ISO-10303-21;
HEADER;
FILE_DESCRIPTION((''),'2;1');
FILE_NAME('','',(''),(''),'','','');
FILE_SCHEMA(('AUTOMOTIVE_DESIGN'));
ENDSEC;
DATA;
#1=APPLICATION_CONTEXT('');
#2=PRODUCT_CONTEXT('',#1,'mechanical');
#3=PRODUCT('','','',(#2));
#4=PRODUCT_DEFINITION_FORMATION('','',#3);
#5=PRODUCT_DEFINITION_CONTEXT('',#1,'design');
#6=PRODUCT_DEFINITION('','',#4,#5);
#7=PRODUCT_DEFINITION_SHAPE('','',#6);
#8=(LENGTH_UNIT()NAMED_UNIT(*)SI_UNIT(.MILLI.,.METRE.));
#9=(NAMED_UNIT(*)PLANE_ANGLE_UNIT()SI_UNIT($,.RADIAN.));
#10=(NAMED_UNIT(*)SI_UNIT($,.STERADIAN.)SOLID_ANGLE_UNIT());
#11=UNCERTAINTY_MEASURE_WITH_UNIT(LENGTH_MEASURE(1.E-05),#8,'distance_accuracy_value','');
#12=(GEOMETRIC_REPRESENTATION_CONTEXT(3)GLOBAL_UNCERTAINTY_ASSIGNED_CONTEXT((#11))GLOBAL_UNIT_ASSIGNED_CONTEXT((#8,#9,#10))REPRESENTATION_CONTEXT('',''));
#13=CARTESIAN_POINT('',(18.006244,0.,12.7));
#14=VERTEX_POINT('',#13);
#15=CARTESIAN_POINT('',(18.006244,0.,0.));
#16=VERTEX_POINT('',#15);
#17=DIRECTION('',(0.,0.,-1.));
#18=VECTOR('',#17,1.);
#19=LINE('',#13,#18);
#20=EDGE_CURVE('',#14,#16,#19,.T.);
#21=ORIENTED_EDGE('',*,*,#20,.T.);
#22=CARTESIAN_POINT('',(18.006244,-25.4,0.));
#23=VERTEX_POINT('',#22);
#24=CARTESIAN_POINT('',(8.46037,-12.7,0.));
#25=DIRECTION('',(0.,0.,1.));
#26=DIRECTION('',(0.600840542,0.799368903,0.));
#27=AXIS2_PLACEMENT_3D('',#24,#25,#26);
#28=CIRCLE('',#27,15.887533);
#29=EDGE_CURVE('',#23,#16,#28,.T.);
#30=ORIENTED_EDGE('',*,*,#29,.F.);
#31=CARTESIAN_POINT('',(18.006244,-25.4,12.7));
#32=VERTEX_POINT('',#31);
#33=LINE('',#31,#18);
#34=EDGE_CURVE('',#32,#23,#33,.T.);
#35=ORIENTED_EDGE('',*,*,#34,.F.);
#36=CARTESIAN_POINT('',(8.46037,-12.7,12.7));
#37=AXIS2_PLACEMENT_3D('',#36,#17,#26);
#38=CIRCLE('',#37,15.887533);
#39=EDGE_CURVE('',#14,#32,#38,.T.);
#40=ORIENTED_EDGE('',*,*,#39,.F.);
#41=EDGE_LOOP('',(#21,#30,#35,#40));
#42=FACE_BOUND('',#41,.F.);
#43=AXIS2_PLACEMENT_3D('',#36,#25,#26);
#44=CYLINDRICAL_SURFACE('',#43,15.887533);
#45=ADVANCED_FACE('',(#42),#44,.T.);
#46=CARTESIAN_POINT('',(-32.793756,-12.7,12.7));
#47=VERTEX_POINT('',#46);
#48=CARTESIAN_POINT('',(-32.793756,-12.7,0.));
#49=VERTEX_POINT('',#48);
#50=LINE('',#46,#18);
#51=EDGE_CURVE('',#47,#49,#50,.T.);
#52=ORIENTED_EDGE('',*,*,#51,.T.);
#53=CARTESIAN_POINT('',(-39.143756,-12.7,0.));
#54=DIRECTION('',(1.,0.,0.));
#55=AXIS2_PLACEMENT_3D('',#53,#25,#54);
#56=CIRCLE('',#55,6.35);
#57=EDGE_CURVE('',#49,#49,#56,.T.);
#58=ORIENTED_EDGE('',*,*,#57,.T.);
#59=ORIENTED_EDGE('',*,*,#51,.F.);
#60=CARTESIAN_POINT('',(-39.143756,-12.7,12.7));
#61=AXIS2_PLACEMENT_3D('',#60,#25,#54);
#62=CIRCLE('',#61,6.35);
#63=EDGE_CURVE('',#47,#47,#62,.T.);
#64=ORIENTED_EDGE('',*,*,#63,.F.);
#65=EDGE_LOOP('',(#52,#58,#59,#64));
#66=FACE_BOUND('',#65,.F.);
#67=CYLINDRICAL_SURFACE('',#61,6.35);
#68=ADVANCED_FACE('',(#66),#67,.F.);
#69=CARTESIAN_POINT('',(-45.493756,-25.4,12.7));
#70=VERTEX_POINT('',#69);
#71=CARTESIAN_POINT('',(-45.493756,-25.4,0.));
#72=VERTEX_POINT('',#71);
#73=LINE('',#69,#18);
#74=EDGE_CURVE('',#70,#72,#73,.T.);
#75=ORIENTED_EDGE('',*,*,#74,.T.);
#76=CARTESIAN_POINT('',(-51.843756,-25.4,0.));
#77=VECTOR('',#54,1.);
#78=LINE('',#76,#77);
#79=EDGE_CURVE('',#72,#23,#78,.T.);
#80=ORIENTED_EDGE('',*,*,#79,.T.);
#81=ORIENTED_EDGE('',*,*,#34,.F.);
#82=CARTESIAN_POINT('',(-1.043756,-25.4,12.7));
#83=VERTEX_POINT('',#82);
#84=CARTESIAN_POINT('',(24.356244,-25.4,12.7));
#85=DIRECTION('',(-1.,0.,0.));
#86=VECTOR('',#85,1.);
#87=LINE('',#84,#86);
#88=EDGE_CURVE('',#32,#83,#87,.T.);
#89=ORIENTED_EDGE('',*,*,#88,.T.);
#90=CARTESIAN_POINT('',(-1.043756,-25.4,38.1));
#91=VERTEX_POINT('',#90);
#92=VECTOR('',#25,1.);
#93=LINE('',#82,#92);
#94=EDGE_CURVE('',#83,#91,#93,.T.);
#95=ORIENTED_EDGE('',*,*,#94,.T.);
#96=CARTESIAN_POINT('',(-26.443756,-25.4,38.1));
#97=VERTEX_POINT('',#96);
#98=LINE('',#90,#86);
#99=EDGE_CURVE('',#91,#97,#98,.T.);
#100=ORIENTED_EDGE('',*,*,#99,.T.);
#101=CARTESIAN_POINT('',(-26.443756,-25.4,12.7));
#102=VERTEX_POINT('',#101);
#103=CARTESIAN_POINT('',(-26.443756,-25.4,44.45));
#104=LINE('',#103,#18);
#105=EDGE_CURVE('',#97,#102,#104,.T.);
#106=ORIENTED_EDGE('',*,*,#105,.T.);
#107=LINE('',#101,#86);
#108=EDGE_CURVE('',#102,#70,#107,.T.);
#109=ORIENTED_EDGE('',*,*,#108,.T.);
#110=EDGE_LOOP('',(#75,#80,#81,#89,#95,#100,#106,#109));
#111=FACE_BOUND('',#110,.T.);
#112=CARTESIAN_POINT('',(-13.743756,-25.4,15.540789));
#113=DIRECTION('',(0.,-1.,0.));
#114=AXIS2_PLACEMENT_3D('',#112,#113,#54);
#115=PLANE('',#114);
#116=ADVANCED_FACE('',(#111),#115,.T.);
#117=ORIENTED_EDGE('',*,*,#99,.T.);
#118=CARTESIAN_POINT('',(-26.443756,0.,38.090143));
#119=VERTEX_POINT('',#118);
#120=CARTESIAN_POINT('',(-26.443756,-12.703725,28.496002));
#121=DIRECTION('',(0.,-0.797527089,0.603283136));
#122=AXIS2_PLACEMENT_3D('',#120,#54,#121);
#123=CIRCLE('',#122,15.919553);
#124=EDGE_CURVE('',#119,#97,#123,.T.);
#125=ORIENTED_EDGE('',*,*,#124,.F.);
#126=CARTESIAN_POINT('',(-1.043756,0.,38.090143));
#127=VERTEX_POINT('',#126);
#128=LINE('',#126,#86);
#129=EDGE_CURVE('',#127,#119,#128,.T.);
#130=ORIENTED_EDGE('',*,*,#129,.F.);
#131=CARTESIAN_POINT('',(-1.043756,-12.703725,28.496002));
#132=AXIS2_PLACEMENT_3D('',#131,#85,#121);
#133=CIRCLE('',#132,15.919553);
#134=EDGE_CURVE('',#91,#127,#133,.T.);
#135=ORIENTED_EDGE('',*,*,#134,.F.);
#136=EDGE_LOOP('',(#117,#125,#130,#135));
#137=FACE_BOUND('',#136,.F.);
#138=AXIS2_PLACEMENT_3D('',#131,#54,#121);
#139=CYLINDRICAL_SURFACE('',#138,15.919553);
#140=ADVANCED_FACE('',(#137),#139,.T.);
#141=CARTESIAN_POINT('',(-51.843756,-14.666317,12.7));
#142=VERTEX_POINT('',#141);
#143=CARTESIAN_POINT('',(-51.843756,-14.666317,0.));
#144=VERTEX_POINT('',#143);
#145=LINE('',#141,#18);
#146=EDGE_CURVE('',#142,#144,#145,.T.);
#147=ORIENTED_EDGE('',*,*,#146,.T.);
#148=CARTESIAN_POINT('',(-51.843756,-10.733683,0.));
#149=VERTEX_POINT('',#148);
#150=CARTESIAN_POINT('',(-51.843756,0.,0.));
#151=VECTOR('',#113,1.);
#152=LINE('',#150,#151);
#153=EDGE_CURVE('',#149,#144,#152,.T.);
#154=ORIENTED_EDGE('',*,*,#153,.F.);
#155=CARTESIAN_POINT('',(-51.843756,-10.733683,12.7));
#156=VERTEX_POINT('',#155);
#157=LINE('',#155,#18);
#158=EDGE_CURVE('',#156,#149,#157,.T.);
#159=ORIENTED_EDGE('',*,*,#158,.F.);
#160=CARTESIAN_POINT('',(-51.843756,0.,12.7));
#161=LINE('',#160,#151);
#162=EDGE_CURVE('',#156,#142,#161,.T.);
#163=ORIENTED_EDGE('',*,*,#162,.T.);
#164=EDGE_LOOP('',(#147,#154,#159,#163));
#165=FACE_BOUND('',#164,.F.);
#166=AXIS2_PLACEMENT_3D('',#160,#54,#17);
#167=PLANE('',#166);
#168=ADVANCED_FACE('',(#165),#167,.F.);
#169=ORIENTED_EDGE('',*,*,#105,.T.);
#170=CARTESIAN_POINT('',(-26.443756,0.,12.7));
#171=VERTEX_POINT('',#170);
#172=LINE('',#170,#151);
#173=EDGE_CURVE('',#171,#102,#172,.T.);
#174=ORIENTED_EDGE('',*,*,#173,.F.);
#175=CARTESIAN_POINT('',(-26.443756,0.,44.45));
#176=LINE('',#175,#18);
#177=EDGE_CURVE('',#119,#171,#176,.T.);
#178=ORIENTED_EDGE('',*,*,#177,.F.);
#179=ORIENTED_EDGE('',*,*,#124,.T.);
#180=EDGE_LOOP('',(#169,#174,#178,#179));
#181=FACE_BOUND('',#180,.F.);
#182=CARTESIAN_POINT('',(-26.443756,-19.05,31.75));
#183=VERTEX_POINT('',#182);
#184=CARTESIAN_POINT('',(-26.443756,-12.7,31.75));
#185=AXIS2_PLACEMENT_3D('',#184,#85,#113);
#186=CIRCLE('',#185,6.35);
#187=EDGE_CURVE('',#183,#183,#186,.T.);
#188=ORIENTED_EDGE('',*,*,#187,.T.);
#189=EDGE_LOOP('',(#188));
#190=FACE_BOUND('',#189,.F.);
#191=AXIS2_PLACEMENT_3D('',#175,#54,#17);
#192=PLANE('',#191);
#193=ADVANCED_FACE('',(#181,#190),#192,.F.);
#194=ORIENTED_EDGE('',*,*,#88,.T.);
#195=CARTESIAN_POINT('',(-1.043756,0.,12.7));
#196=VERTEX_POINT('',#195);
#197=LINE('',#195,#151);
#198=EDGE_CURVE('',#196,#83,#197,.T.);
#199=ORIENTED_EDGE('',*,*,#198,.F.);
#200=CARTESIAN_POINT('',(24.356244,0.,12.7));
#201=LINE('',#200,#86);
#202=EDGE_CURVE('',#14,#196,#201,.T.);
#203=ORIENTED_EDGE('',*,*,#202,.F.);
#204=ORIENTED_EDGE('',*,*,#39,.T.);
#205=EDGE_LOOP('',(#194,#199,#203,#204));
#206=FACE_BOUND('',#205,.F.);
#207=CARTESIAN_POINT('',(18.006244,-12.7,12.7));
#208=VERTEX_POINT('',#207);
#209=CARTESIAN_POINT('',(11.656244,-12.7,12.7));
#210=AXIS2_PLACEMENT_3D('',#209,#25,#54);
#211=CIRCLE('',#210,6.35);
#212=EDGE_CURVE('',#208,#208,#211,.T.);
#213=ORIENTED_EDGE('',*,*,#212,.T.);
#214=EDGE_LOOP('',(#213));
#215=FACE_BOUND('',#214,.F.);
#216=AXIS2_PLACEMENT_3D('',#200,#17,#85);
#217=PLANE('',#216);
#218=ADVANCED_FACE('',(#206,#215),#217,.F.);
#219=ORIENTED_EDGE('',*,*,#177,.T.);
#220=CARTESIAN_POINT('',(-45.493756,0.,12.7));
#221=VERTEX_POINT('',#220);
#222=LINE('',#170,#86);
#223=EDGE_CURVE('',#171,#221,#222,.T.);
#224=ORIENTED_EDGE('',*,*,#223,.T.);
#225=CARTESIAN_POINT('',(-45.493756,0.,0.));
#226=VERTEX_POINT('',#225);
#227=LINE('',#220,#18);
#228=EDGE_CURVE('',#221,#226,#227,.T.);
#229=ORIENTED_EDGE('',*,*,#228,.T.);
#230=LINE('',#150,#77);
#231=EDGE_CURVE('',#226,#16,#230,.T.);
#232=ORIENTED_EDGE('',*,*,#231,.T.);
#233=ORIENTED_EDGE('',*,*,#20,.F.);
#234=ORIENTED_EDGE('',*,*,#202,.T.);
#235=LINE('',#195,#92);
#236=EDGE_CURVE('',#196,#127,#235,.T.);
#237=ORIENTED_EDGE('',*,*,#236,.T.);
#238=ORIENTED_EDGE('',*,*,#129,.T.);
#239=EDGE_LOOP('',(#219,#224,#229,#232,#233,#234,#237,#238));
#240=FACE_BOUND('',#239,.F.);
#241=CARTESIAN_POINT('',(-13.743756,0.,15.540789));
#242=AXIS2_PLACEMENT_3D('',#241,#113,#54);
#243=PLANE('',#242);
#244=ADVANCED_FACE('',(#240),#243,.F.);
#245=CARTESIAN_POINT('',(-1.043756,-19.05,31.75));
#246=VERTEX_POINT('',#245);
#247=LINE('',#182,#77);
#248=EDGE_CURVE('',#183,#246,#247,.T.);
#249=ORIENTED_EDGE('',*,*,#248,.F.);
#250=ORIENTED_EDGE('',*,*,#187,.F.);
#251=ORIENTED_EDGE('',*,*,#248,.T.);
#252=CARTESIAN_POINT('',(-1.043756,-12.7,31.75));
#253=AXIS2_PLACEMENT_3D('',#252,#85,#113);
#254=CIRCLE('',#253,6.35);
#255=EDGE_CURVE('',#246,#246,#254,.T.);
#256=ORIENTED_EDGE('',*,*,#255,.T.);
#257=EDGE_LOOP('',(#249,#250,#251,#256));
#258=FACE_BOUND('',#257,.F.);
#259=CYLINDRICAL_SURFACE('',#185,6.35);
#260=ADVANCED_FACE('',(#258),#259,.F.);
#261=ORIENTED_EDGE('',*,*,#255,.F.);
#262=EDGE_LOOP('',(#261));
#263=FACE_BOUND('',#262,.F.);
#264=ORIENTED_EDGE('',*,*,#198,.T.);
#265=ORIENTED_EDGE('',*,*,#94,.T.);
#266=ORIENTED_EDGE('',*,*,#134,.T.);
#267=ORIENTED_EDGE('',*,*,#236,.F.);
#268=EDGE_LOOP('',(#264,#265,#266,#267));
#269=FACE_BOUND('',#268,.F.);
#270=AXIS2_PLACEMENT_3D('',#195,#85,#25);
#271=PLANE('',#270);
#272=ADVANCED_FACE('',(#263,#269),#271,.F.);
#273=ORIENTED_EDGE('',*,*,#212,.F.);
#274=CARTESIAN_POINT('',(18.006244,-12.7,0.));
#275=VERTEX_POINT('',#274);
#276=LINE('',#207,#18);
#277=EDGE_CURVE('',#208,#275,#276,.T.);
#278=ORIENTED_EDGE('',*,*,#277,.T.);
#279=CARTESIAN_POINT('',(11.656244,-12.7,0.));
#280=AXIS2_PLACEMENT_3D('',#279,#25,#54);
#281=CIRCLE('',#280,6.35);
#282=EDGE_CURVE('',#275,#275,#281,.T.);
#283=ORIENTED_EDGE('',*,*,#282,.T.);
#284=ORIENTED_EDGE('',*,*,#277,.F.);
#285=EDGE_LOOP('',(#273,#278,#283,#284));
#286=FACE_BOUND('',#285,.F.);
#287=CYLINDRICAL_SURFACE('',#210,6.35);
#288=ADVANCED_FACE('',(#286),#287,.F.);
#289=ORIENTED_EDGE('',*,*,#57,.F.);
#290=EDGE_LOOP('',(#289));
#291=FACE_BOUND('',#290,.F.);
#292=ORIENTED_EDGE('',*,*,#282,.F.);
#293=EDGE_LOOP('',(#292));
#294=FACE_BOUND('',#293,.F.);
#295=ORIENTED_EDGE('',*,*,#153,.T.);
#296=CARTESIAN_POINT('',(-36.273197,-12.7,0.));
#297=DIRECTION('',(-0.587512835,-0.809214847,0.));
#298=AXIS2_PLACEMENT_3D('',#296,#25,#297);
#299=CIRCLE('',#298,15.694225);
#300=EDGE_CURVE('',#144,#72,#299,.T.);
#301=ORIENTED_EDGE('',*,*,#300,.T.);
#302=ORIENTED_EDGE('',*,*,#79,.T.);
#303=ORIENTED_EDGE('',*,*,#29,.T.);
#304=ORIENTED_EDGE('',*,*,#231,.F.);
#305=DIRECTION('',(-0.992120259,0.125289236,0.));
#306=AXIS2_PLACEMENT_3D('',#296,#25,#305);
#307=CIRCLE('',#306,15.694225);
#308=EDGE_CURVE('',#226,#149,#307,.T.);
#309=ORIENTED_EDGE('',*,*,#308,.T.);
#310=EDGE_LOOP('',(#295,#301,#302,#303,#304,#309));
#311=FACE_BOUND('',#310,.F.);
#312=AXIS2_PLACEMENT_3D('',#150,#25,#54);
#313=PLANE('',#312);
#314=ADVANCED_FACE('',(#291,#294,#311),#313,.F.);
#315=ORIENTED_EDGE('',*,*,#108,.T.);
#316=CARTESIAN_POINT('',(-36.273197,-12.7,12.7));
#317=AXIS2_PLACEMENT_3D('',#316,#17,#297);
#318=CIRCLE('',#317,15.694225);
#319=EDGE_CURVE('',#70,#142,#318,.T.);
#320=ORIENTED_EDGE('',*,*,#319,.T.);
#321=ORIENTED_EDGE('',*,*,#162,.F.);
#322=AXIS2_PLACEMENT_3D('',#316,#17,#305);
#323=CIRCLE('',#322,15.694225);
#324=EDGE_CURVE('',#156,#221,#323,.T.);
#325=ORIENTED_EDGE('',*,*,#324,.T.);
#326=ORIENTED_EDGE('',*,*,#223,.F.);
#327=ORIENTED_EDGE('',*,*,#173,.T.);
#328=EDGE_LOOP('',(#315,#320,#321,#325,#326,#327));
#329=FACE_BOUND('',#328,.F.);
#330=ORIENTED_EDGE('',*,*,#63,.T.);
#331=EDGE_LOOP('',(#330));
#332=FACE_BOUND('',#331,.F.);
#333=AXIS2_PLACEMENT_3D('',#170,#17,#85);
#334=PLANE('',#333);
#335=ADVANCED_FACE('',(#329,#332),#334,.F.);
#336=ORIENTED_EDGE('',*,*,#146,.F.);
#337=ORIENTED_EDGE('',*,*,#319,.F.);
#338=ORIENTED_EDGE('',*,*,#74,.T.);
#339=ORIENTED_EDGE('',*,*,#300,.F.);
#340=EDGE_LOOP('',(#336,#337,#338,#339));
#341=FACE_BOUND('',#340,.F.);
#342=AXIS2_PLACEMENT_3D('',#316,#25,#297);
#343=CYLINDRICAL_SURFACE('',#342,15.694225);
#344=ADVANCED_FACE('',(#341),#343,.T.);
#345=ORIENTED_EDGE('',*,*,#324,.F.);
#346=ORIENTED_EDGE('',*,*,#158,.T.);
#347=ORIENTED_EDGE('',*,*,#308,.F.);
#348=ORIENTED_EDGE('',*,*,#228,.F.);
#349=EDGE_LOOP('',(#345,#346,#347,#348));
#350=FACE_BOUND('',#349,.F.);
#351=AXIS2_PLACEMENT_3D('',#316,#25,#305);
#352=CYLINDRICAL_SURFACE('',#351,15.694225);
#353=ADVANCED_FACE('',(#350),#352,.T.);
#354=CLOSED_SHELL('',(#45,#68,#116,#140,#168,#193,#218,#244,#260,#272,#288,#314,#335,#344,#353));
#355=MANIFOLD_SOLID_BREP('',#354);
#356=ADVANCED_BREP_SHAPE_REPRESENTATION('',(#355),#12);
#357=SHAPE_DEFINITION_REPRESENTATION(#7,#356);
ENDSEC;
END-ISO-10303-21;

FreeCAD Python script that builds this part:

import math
import FreeCAD as App
import Part
import Sketcher
Q = App.Units.Quantity

doc = App.newDocument("Part")
body = doc.addObject("PartDesign::Body", "Body")

# Sketch on XZ plane
sketch1 = body.newObject("Sketcher::SketchObject", "Sketch")
sketch1.AttachmentSupport = (doc.getObject("XZ_Plane"), [""])
sketch1.MapMode = "FlatFace"
sketch1.addGeometry([
    Part.LineSegment(App.Vector(-52, 13, 0), App.Vector(-52, 0, 0)),  # 0
    Part.LineSegment(App.Vector(-52, 0, 0), App.Vector(24, 0, 0)),  # 1
    Part.LineSegment(App.Vector(24, 0, 0), App.Vector(24, 13, 0)),  # 2
    Part.LineSegment(App.Vector(24, 13, 0), App.Vector(-1, 13, 0)),  # 3
    Part.LineSegment(App.Vector(-1, 13, 0), App.Vector(-1, 44, 0)),  # 4
    Part.LineSegment(App.Vector(-1, 44, 0), App.Vector(-26, 44, 0)),  # 5
    Part.LineSegment(App.Vector(-26, 44, 0), App.Vector(-26, 13, 0)),  # 6
    Part.LineSegment(App.Vector(-26, 13, 0), App.Vector(-52, 13, 0)),  # 7
], False)
sketch1.addConstraint([
    Sketcher.Constraint("Coincident", 0, 2, 1, 1),
    Sketcher.Constraint("Coincident", 1, 2, 2, 1),
    Sketcher.Constraint("Coincident", 2, 2, 3, 1),
    Sketcher.Constraint("Coincident", 3, 2, 4, 1),
    Sketcher.Constraint("Coincident", 4, 2, 5, 1),
    Sketcher.Constraint("Coincident", 5, 2, 6, 1),
    Sketcher.Constraint("Coincident", 6, 2, 7, 1),
    Sketcher.Constraint("Coincident", 7, 2, 0, 1),
    Sketcher.Constraint("Vertical", 0),
    Sketcher.Constraint("Horizontal", 1),
    Sketcher.Constraint("Vertical", 2),
    Sketcher.Constraint("Horizontal", 3),
    Sketcher.Constraint("Vertical", 4),
    Sketcher.Constraint("Horizontal", 5),
    Sketcher.Constraint("Vertical", 6),
    Sketcher.Constraint("Horizontal", 7),
    Sketcher.Constraint("PointOnObject", 0, 2, -1),
    Sketcher.Constraint("Horizontal", 3, 2, 6, 2),
    Sketcher.Constraint("Equal", 3, 5),
    Sketcher.Constraint("Equal", 5, 7),
    Sketcher.Constraint("DistanceX", 1, 1, 1, 2, Q("3 in")),
    Sketcher.Constraint("DistanceY", 0, 2, 0, 1, Q("0.5 in")),
    Sketcher.Constraint("DistanceY", 4, 1, 4, 2, Q("1.25 in")),
    Sketcher.Constraint("DistanceX", 0, 2, -1, 1, Q("51.843756 mm")),
])
pad1 = body.newObject("PartDesign::Pad", "Pad")
pad1.Profile = sketch1
pad1.Length = Q("1 in")

# Sketch on YZ plane
sketch2 = body.newObject("Sketcher::SketchObject", "Sketch001")
sketch2.AttachmentSupport = (doc.getObject("YZ_Plane"), [""])
sketch2.MapMode = "FlatFace"
sketch2.AttachmentOffset = App.Placement(App.Vector(0, 0, -26.443756), App.Rotation())
sketch2.addGeometry(Part.Circle(App.Vector(-13, 32, 0), App.Vector(0, 0, 1), 6), False)
sketch2.addConstraint([
    Sketcher.Constraint("Diameter", 0, Q("0.5 in")),
    Sketcher.Constraint("DistanceX", 0, 3, -1, 1, Q("0.5 in")),
    Sketcher.Constraint("DistanceY", -1, 1, 0, 3, Q("1.25 in")),
])
pocket1 = body.newObject("PartDesign::Pocket", "Pocket")
pocket1.Profile = sketch2
pocket1.Type = "ThroughAll"
pocket1.Reversed = True

# Sketch on YZ plane
sketch3 = body.newObject("Sketcher::SketchObject", "Sketch002")
sketch3.AttachmentSupport = (doc.getObject("YZ_Plane"), [""])
sketch3.MapMode = "FlatFace"
sketch3.AttachmentOffset = App.Placement(App.Vector(0, 0, -1.043756), App.Rotation())
sketch3.addGeometry([
    Part.ArcOfCircle(Part.Circle(App.Vector(-13, 28, 0), App.Vector(0, 0, 1), 16), math.radians(37), math.radians(143)),
    Part.LineSegment(App.Vector(0, 38, 0), App.Vector(0, 44, 0)),
    Part.LineSegment(App.Vector(0, 44, 0), App.Vector(-25, 44, 0)),
    Part.LineSegment(App.Vector(-25, 44, 0), App.Vector(-25, 38, 0)),
], False)
sketch3.addConstraint([
    Sketcher.Constraint("Coincident", 0, 1, 1, 1),
    Sketcher.Constraint("Coincident", 1, 2, 2, 1),
    Sketcher.Constraint("Coincident", 2, 2, 3, 1),
    Sketcher.Constraint("Coincident", 3, 2, 0, 2),
    Sketcher.Constraint("Vertical", 1),
    Sketcher.Constraint("Horizontal", 2),
    Sketcher.Constraint("Vertical", 3),
    Sketcher.Constraint("PointOnObject", 0, 1, -2),
    Sketcher.Constraint("DistanceX", 2, 2, 2, 1, Q("1 in")),
    Sketcher.Constraint("DistanceY", 3, 2, 3, 1, Q("0.25 in")),
    Sketcher.Constraint("DistanceY", -1, 1, 3, 2, Q("1.5 in")),
    Sketcher.Constraint("Radius", 0, Q("15.919553 mm")),
    Sketcher.Constraint("DistanceY", -1, 1, 0, 3, Q("28.496002 mm")),
])
pocket2 = body.newObject("PartDesign::Pocket", "Pocket001")
pocket2.Profile = sketch3
pocket2.Type = "ThroughAll"

# Sketch on XY plane
sketch4 = body.newObject("Sketcher::SketchObject", "Sketch003")
sketch4.AttachmentSupport = (doc.getObject("XY_Plane"), [""])
sketch4.MapMode = "FlatFace"
sketch4.AttachmentOffset = App.Placement(App.Vector(0, 0, 0.5 * 25.4), App.Rotation())
sketch4.addGeometry([
    Part.Circle(App.Vector(-39, -13, 0), App.Vector(0, 0, 1), 6),
    Part.Circle(App.Vector(12, -13, 0), App.Vector(0, 0, 1), 6),
], False)
sketch4.addConstraint([
    Sketcher.Constraint("Equal", 0, 1),
    Sketcher.Constraint("Horizontal", 0, 3, 1, 3),
    Sketcher.Constraint("Diameter", 0, Q("0.5 in")),
    Sketcher.Constraint("DistanceX", 0, 3, 1, 3, Q("2 in")),
    Sketcher.Constraint("DistanceY", 0, 3, -1, 1, Q("0.5 in")),
    Sketcher.Constraint("DistanceX", 0, 3, -1, 1, Q("39.143756 mm")),
])
pocket3 = body.newObject("PartDesign::Pocket", "Pocket002")
pocket3.Profile = sketch4
pocket3.Type = "ThroughAll"

# Sketch on XY plane
sketch5 = body.newObject("Sketcher::SketchObject", "Sketch004")
sketch5.AttachmentSupport = (doc.getObject("XY_Plane"), [""])
sketch5.MapMode = "FlatFace"
sketch5.AttachmentOffset = App.Placement(App.Vector(0, 0, 0.5 * 25.4), App.Rotation())
sketch5.addGeometry([
    Part.ArcOfCircle(Part.Circle(App.Vector(-36, -13, 0), App.Vector(0, 0, 1), 16), math.radians(-173), math.radians(-126)),  # 0
    Part.LineSegment(App.Vector(-52, -15, 0), App.Vector(-52, -25, 0)),  # 1
    Part.LineSegment(App.Vector(-52, -25, 0), App.Vector(-45, -25, 0)),  # 2
    Part.ArcOfCircle(Part.Circle(App.Vector(-36, -13, 0), App.Vector(0, 0, 1), 16), math.radians(126), math.radians(173)),  # 3
    Part.LineSegment(App.Vector(-45, 0, 0), App.Vector(-52, 0, 0)),  # 4
    Part.LineSegment(App.Vector(-52, 0, 0), App.Vector(-52, -11, 0)),  # 5
], False)
sketch5.addConstraint([
    Sketcher.Constraint("Coincident", 0, 1, 1, 1),
    Sketcher.Constraint("Coincident", 1, 2, 2, 1),
    Sketcher.Constraint("Coincident", 2, 2, 0, 2),
    Sketcher.Constraint("Coincident", 3, 1, 4, 1),
    Sketcher.Constraint("Coincident", 4, 2, 5, 1),
    Sketcher.Constraint("Coincident", 5, 2, 3, 2),
    Sketcher.Constraint("Vertical", 1),
    Sketcher.Constraint("Horizontal", 2),
    Sketcher.Constraint("Horizontal", 4),
    Sketcher.Constraint("Vertical", 5),
    Sketcher.Constraint("Coincident", 3, 3, 0, 3),
    Sketcher.Constraint("Equal", 0, 3),
    Sketcher.Constraint("PointOnObject", 3, 1, -1),
    Sketcher.Constraint("Vertical", 2, 2, 3, 1),
    Sketcher.Constraint("Vertical", 1, 2, 4, 2),
    Sketcher.Constraint("DistanceY", 1, 2, -1, 1, Q("1 in")),
    Sketcher.Constraint("DistanceX", 2, 1, 2, 2, Q("0.25 in")),
    Sketcher.Constraint("Radius", 0, Q("15.694225 mm")),
    Sketcher.Constraint("DistanceX", 0, 3, -1, 1, Q("36.273197 mm")),
])
pocket4 = body.newObject("PartDesign::Pocket", "Pocket003")
pocket4.Profile = sketch5
pocket4.Type = "ThroughAll"

# Sketch on XY plane
sketch6 = body.newObject("Sketcher::SketchObject", "Sketch005")
sketch6.AttachmentSupport = (doc.getObject("XY_Plane"), [""])
sketch6.MapMode = "FlatFace"
sketch6.AttachmentOffset = App.Placement(App.Vector(0, 0, 0.5 * 25.4), App.Rotation())
sketch6.addGeometry([
    Part.ArcOfCircle(Part.Circle(App.Vector(8, -13, 0), App.Vector(0, 0, 1), 16), math.radians(-53), math.radians(53)),
    Part.LineSegment(App.Vector(18, -25, 0), App.Vector(24, -25, 0)),
    Part.LineSegment(App.Vector(24, -25, 0), App.Vector(24, 0, 0)),
    Part.LineSegment(App.Vector(24, 0, 0), App.Vector(18, 0, 0)),
], False)
sketch6.addConstraint([
    Sketcher.Constraint("Coincident", 0, 1, 1, 1),
    Sketcher.Constraint("Coincident", 1, 2, 2, 1),
    Sketcher.Constraint("Coincident", 2, 2, 3, 1),
    Sketcher.Constraint("Coincident", 3, 2, 0, 2),
    Sketcher.Constraint("Horizontal", 1),
    Sketcher.Constraint("Vertical", 2),
    Sketcher.Constraint("Horizontal", 3),
    Sketcher.Constraint("PointOnObject", 2, 2, -1),
    Sketcher.Constraint("Vertical", 0, 1, 3, 2),
    Sketcher.Constraint("DistanceY", 2, 1, 2, 2, Q("1 in")),
    Sketcher.Constraint("DistanceX", 1, 1, 1, 2, Q("0.25 in")),
    Sketcher.Constraint("Radius", 0, Q("15.887533 mm")),
    Sketcher.Constraint("DistanceX", -1, 1, 0, 3, Q("8.46037 mm")),
])
pocket5 = body.newObject("PartDesign::Pocket", "Pocket004")
pocket5.Profile = sketch6
pocket5.Type = "ThroughAll"

doc.recompute()
